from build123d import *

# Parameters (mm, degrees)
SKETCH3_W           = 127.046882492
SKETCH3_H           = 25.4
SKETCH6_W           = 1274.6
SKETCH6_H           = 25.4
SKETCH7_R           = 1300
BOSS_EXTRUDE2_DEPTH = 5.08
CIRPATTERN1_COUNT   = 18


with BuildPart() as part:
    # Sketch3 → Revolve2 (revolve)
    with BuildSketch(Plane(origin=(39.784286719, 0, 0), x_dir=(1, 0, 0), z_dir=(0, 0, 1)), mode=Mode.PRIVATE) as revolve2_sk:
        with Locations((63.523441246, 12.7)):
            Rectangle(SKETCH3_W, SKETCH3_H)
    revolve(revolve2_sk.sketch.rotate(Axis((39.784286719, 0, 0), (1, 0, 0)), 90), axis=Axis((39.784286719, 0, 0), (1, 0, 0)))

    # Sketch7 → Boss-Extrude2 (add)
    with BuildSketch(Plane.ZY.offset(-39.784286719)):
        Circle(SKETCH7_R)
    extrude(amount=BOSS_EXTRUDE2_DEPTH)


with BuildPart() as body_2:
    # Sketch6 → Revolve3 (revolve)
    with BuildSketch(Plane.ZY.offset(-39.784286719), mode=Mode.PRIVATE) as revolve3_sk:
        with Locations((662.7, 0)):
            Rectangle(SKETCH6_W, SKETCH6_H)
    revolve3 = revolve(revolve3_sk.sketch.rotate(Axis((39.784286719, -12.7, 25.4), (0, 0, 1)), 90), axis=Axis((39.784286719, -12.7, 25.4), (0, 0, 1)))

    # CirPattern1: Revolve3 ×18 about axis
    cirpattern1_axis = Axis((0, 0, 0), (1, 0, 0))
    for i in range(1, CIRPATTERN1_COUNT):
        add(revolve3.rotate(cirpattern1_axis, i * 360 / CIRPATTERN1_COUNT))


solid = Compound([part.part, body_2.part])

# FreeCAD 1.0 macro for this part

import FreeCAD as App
import Part
import Sketcher

V = App.Vector
Q = App.Units.Quantity

doc = App.newDocument("Part")
body = doc.addObject("PartDesign::Body", "Body")

# Sketch on XY plane
sketch1 = doc.addObject("Sketcher::SketchObject", "Sketch")
body.addObject(sketch1)
sketch1.AttachmentSupport = (doc.XY_Plane, [""])
sketch1.MapMode = "FlatFace"
sketch1.addGeometry(Part.LineSegment(V(39.784287, 25.4, 0), V(39.784287, 0, 0)), False)
sketch1.addGeometry(Part.LineSegment(V(39.784287, 0, 0), V(166.831169, 0, 0)), False)
sketch1.addGeometry(Part.LineSegment(V(166.831169, 0, 0), V(166.831169, 25.4, 0)), False)
sketch1.addGeometry(Part.LineSegment(V(166.831169, 25.4, 0), V(39.784287, 25.4, 0)), False)
sketch1.addConstraint(Sketcher.Constraint("Coincident", 0, 2, 1, 1))
sketch1.addConstraint(Sketcher.Constraint("Coincident", 1, 2, 2, 1))
sketch1.addConstraint(Sketcher.Constraint("Coincident", 2, 2, 3, 1))
sketch1.addConstraint(Sketcher.Constraint("Coincident", 3, 2, 0, 1))
sketch1.addConstraint(Sketcher.Constraint("Vertical", 0))
sketch1.addConstraint(Sketcher.Constraint("Horizontal", 1))
sketch1.addConstraint(Sketcher.Constraint("Vertical", 2))
sketch1.addConstraint(Sketcher.Constraint("Horizontal", 3))
sketch1.addConstraint(Sketcher.Constraint("PointOnObject", 0, 2, -1))
sketch1.addConstraint(Sketcher.Constraint("DistanceY", 0, 2, 0, 1, Q("25.4 mm")))
sketch1.addConstraint(Sketcher.Constraint("DistanceX", 1, 1, 1, 2, Q("127.046882 mm")))
sketch1.addConstraint(Sketcher.Constraint("DistanceX", -1, 1, 1, 2, Q("166.831169 mm")))
revolution = doc.addObject("PartDesign::Revolution", "Revolution")
body.addObject(revolution)
revolution.Profile = sketch1
revolution.ReferenceAxis = (sketch1, ["H_Axis"])
revolution.Angle = 360

# Sketch on YZ plane
sketch2 = doc.addObject("Sketcher::SketchObject", "Sketch001")
body.addObject(sketch2)
sketch2.AttachmentSupport = (doc.YZ_Plane, [""])
sketch2.MapMode = "FlatFace"
sketch2.AttachmentOffset = App.Placement(V(0, 0, 39.784287), App.Rotation())
sketch2.addGeometry(Part.Circle(V(0, 0, 0), V(0, 0, 1), 1300), False)
sketch2.addConstraint(Sketcher.Constraint("Coincident", 0, 3, -1, 1))
sketch2.addConstraint(Sketcher.Constraint("Diameter", 0, Q("2600 mm")))
pad1 = doc.addObject("PartDesign::Pad", "Pad")
body.addObject(pad1)
pad1.Profile = sketch2
pad1.Length = 5.08
pad1.Reversed = True
body2 = doc.addObject("PartDesign::Body", "Body001")

# Sketch on YZ plane
sketch3 = doc.addObject("Sketcher::SketchObject", "Sketch002")
body2.addObject(sketch3)
sketch3.AttachmentSupport = (doc.getObject("YZ_Plane001"), [""])
sketch3.MapMode = "FlatFace"
sketch3.AttachmentOffset = App.Placement(V(0, 0, 39.784287), App.Rotation())
sketch3.addGeometry(Part.LineSegment(V(12.7, 25.4, 0), V(-12.7, 25.4, 0)), False)
sketch3.addGeometry(Part.LineSegment(V(-12.7, 25.4, 0), V(-12.7, 1300, 0)), False)
sketch3.addGeometry(Part.LineSegment(V(-12.7, 1300, 0), V(12.7, 1300, 0)), False)
sketch3.addGeometry(Part.LineSegment(V(12.7, 1300, 0), V(12.7, 25.4, 0)), False)
sketch3.addGeometry(Part.LineSegment(V(-12.7, 25.4, 0), V(-12.7, 1300, 0)), True)  # axis
sketch3.addConstraint(Sketcher.Constraint("Coincident", 0, 2, 1, 1))
sketch3.addConstraint(Sketcher.Constraint("Coincident", 1, 2, 2, 1))
sketch3.addConstraint(Sketcher.Constraint("Coincident", 2, 2, 3, 1))
sketch3.addConstraint(Sketcher.Constraint("Coincident", 3, 2, 0, 1))
sketch3.addConstraint(Sketcher.Constraint("Horizontal", 0))
sketch3.addConstraint(Sketcher.Constraint("Vertical", 1))
sketch3.addConstraint(Sketcher.Constraint("Horizontal", 2))
sketch3.addConstraint(Sketcher.Constraint("Vertical", 3))
sketch3.addConstraint(Sketcher.Constraint("Vertical", 4))
sketch3.addConstraint(Sketcher.Constraint("Coincident", 4, 1, 0, 2))
sketch3.addConstraint(Sketcher.Constraint("Symmetric", 2, 2, 4, 2, -2))
sketch3.addConstraint(Sketcher.Constraint("DistanceX", 0, 2, 0, 1, Q("25.4 mm")))
sketch3.addConstraint(Sketcher.Constraint("DistanceY", 1, 1, 1, 2, Q("1274.6 mm")))
sketch3.addConstraint(Sketcher.Constraint("DistanceY", -1, 1, 1, 2, Q("1300 mm")))
revolution2 = doc.addObject("PartDesign::Revolution", "Revolution001")
body2.addObject(revolution2)
revolution2.Profile = sketch3
revolution2.ReferenceAxis = (sketch3, ["Axis0"])
revolution2.Angle = 360
doc.recompute()

polarpattern = doc.addObject("PartDesign::PolarPattern", "PolarPattern")
body2.addObject(polarpattern)
polarpattern.Originals = [revolution2]
polarpattern.Axis = (doc.getObject("X_Axis001"), [""])
polarpattern.Angle = 360
polarpattern.Occurrences = 18
body2.Tip = polarpattern

doc.recompute()
